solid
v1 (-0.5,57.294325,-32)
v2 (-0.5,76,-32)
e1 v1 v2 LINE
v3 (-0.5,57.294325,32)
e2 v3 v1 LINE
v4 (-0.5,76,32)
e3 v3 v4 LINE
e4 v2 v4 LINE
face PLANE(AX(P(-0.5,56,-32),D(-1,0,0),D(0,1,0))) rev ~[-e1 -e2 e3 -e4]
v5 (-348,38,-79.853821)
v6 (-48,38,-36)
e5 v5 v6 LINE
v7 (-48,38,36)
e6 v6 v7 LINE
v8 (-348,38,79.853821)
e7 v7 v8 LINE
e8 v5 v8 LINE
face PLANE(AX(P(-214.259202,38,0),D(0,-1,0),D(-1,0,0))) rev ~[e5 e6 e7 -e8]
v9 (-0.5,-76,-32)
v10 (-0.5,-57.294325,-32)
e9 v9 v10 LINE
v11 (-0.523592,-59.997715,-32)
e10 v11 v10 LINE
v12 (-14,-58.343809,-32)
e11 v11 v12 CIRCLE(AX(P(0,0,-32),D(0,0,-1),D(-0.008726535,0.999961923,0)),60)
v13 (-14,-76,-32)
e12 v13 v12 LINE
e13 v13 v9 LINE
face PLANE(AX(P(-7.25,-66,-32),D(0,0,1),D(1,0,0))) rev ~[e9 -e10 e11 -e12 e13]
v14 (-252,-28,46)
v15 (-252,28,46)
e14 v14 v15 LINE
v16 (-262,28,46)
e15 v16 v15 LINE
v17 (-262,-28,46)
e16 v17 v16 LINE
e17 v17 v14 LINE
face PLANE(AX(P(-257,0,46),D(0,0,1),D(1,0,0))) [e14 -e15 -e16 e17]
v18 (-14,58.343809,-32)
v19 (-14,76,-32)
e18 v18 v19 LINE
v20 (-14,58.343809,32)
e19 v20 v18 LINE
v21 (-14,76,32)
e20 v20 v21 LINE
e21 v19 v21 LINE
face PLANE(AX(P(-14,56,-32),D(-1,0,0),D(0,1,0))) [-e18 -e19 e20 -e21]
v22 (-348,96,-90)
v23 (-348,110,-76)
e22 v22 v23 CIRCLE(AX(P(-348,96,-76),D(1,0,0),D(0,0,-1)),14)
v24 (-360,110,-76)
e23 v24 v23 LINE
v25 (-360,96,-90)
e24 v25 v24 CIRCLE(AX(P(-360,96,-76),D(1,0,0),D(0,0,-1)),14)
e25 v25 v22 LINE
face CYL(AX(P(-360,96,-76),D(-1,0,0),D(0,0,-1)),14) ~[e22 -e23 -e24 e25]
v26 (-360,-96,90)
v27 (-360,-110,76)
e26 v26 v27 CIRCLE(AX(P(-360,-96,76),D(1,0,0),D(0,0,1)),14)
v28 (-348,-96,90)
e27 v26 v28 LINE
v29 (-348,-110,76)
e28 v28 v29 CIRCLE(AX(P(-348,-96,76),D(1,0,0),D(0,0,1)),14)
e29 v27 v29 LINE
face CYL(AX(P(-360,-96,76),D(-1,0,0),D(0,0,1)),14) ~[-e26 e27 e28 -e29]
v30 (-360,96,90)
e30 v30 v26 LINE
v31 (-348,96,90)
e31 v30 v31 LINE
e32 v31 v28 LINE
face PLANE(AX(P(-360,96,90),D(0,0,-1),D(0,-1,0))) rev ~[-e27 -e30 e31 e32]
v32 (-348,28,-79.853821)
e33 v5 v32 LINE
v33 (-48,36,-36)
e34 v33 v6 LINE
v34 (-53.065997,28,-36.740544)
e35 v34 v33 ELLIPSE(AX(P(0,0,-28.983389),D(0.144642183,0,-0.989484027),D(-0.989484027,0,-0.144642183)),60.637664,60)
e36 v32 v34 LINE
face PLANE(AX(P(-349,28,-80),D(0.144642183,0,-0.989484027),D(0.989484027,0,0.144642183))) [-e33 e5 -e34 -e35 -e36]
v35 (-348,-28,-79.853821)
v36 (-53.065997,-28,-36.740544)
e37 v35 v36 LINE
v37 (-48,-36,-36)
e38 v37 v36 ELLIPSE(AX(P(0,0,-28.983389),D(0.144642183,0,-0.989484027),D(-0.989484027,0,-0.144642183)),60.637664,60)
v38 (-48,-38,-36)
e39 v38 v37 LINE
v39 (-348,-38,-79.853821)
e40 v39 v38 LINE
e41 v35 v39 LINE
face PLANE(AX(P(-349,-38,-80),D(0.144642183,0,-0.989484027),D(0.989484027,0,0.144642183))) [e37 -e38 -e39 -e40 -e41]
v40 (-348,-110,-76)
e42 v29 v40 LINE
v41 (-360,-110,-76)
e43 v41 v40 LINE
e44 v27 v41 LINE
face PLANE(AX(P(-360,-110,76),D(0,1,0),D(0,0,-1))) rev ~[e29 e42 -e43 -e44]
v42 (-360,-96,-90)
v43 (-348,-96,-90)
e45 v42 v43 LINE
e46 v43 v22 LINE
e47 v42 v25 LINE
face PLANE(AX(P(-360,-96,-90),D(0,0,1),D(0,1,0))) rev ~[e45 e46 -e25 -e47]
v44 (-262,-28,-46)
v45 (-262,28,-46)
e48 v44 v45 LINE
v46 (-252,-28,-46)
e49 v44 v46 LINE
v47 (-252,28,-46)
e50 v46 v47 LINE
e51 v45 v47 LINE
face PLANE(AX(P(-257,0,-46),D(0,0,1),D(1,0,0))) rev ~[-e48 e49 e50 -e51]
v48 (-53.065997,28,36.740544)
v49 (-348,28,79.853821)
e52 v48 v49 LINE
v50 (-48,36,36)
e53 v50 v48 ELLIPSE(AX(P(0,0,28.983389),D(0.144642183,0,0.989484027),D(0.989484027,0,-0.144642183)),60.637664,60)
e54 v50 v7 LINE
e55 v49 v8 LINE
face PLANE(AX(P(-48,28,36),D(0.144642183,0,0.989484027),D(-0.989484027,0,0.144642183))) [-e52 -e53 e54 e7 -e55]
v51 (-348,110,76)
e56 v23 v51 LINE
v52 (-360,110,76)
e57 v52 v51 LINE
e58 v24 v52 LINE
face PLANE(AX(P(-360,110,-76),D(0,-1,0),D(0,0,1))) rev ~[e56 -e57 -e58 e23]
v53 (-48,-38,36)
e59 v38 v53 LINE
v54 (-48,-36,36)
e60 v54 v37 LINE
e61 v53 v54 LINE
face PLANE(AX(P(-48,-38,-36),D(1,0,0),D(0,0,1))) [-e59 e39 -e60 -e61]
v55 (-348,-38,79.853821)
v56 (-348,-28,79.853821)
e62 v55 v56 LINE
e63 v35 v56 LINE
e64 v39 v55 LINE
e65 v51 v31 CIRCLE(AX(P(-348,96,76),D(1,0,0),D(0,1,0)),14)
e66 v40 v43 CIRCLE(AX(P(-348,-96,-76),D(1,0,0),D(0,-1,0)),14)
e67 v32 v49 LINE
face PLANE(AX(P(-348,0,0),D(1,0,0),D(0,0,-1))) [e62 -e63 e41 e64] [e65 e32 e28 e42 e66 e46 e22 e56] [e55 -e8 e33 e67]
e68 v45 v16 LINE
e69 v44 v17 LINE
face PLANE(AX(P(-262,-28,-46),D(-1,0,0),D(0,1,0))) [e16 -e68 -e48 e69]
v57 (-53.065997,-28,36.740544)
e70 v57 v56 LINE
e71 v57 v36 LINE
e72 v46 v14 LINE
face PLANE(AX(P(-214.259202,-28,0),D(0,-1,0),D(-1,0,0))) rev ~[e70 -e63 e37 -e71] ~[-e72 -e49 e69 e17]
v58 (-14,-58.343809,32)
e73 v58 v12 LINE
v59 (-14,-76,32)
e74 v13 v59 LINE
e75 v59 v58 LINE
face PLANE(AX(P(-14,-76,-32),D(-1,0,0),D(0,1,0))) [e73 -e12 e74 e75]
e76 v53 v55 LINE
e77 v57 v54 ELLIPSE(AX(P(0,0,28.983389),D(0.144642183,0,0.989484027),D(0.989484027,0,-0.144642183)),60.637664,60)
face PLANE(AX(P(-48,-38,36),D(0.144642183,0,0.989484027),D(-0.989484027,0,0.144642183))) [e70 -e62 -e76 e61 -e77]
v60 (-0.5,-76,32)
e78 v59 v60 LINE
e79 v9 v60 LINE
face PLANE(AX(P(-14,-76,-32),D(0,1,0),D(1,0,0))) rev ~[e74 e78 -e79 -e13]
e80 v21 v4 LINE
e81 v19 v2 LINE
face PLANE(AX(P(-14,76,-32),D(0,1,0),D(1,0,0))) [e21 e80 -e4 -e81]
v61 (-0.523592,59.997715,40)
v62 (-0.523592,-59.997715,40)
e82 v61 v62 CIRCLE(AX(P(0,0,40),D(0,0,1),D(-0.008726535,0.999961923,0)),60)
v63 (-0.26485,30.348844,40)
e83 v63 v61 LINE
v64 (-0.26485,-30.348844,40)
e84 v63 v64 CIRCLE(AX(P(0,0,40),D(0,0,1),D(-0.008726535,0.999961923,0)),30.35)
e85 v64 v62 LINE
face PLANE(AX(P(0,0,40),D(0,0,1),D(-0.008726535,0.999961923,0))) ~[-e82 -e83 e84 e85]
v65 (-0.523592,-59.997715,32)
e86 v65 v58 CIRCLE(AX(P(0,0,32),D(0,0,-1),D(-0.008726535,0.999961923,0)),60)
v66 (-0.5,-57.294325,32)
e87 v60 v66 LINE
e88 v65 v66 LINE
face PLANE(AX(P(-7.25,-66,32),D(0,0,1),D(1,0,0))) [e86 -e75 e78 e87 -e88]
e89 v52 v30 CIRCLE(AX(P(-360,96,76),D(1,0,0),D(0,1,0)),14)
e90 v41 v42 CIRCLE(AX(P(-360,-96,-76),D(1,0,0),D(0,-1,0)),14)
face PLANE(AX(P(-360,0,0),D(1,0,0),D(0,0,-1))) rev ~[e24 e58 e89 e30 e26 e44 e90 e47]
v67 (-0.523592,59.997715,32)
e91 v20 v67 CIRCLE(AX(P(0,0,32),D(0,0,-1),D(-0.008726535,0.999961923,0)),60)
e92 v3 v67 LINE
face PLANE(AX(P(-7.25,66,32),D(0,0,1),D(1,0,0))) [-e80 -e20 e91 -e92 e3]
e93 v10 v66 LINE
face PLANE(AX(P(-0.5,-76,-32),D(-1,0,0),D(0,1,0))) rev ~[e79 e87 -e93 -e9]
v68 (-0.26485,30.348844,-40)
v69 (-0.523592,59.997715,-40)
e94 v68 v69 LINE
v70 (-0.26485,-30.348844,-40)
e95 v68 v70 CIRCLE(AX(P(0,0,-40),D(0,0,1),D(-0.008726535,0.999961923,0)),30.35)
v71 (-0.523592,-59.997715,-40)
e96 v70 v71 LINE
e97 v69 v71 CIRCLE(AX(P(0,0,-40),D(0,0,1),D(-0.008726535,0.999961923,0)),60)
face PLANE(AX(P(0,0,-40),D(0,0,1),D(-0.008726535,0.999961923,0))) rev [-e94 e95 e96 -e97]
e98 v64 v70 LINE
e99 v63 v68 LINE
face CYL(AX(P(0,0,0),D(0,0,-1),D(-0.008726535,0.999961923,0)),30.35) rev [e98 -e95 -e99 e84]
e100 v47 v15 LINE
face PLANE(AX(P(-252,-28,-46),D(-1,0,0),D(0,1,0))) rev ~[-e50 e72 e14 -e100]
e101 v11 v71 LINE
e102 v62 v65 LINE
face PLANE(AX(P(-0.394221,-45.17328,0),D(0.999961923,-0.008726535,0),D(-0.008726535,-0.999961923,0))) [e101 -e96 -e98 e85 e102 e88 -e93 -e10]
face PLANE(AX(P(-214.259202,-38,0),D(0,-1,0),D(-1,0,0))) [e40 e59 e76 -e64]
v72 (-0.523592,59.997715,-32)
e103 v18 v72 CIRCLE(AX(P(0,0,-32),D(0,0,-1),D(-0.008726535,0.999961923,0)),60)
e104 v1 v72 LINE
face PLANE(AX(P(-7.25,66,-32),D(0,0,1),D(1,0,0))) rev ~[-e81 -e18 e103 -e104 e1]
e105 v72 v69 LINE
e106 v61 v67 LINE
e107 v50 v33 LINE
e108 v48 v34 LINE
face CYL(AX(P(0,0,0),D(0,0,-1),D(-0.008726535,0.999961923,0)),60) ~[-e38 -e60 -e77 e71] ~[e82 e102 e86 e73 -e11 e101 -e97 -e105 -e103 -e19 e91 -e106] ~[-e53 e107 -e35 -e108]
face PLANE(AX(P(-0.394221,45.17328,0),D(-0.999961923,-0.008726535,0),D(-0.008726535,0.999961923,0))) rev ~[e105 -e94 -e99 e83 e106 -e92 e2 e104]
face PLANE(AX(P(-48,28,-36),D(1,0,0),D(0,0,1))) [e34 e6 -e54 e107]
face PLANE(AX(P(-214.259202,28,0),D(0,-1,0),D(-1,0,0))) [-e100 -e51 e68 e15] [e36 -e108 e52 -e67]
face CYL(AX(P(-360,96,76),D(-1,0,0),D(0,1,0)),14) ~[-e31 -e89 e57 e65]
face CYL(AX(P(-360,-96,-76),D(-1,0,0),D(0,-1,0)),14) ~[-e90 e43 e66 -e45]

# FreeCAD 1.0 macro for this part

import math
import FreeCAD as App
import Part
import Sketcher


def add_polygon(sketch, points):
    """Adds a closed chain of lines whose ends are joined by coincident constraints."""
    first, n = sketch.GeometryCount, len(points)
    for a, b in zip(points, points[1:] + points[:1]):
        sketch.addGeometry(Part.LineSegment(App.Vector(*a, 0), App.Vector(*b, 0)), False)
    for i in range(n):
        sketch.addConstraint(Sketcher.Constraint("Coincident", first + i, 2, first + (i + 1) % n, 1))

doc = App.newDocument("Part")
body = doc.addObject("PartDesign::Body", "Body")

# Sketch on YZ plane
sketch1 = body.newObject("Sketcher::SketchObject", "Sketch")
sketch1.AttachmentSupport = (doc.getObject("YZ_Plane"), [""])
sketch1.MapMode = "FlatFace"
sketch1.AttachmentOffset = App.Placement(App.Vector(0, 0, -360), App.Rotation())
sketch1.addGeometry([
    Part.LineSegment(App.Vector(96, 90, 0), App.Vector(-96, 90, 0)),  # 0
    Part.ArcOfCircle(Part.Circle(App.Vector(-96, 76, 0), App.Vector(0, 0, 1), 14), math.radians(90), math.radians(180)),  # 1
    Part.LineSegment(App.Vector(-110, 76, 0), App.Vector(-110, -76, 0)),  # 2
    Part.ArcOfCircle(Part.Circle(App.Vector(-96, -76, 0), App.Vector(0, 0, 1), 14), math.radians(180), math.radians(270)),  # 3
    Part.LineSegment(App.Vector(-96, -90, 0), App.Vector(96, -90, 0)),  # 4
    Part.ArcOfCircle(Part.Circle(App.Vector(96, -76, 0), App.Vector(0, 0, 1), 14), math.radians(-90), math.radians(0)),  # 5
    Part.LineSegment(App.Vector(110, -76, 0), App.Vector(110, 76, 0)),  # 6
    Part.ArcOfCircle(Part.Circle(App.Vector(96, 76, 0), App.Vector(0, 0, 1), 14), math.radians(0), math.radians(90)),  # 7
], False)
sketch1.addConstraint([
    Sketcher.Constraint("Tangent", 0, 2, 1, 1),
    Sketcher.Constraint("Tangent", 1, 2, 2, 1),
    Sketcher.Constraint("Tangent", 2, 2, 3, 1),
    Sketcher.Constraint("Tangent", 3, 2, 4, 1),
    Sketcher.Constraint("Tangent", 4, 2, 5, 1),
    Sketcher.Constraint("Tangent", 5, 2, 6, 1),
    Sketcher.Constraint("Tangent", 6, 2, 7, 1),
    Sketcher.Constraint("Tangent", 7, 2, 0, 1),
    Sketcher.Constraint("Horizontal", 0),
    Sketcher.Constraint("Vertical", 2),
    Sketcher.Constraint("Horizontal", 4),
    Sketcher.Constraint("Vertical", 6),
    Sketcher.Constraint("Equal", 1, 3),
    Sketcher.Constraint("Equal", 3, 5),
    Sketcher.Constraint("Equal", 5, 7),
    Sketcher.Constraint("Symmetric", 1, 3, 5, 3, -1, 1),
    Sketcher.Constraint("Radius", 1, 14.0),
    Sketcher.Constraint("DistanceX", 0, 2, 0, 1, 192.0),
    Sketcher.Constraint("DistanceY", 2, 2, 2, 1, 152.0),
])
pad1 = body.newObject("PartDesign::Pad", "Pad")
pad1.Profile = sketch1
pad1.Length = 12
body2 = doc.addObject("PartDesign::Body", "Body001")

# Sketch on XZ plane
sketch2 = body2.newObject("Sketcher::SketchObject", "Sketch001")
sketch2.AttachmentSupport = (doc.getObject("XZ_Plane001"), [""])
sketch2.MapMode = "FlatFace"
sketch2.AttachmentOffset = App.Placement(App.Vector(0, 0, -28), App.Rotation())
add_polygon(sketch2, [(-48, -36), (-349, -80), (-349, 80), (-48, 36)])  # lines 0-3
sketch2.addConstraint([
    Sketcher.Constraint("Vertical", 1),
    Sketcher.Constraint("Vertical", 3),
    Sketcher.Constraint("Equal", 0, 2),
    Sketcher.Constraint("DistanceY", 1, 1, 1, 2, 160.0),
    Sketcher.Constraint("DistanceY", 3, 2, 3, 1, 72.0),
    Sketcher.Constraint("DistanceX", 0, 2, -1, 1, 349.0),
    Sketcher.Constraint("DistanceY", 0, 2, -1, 1, 80.0),
    Sketcher.Constraint("DistanceX", 2, 2, -1, 1, 48.0),
])
pad2 = body2.newObject("PartDesign::Pad", "Pad001")
pad2.Profile = sketch2
pad2.Length = 10
pad2.Reversed = True
body3 = doc.addObject("PartDesign::Body", "Body002")

# Sketch on XZ plane
sketch3 = body3.newObject("Sketcher::SketchObject", "Sketch002")
sketch3.AttachmentSupport = (doc.getObject("XZ_Plane002"), [""])
sketch3.MapMode = "FlatFace"
sketch3.AttachmentOffset = App.Placement(App.Vector(0, 0, 38), App.Rotation())
add_polygon(sketch3, [(-48, -36), (-349, -80), (-349, 80), (-48, 36)])  # lines 0-3
sketch3.addConstraint([
    Sketcher.Constraint("Vertical", 1),
    Sketcher.Constraint("Vertical", 3),
    Sketcher.Constraint("Equal", 0, 2),
    Sketcher.Constraint("DistanceY", 1, 1, 1, 2, 160.0),
    Sketcher.Constraint("DistanceY", 3, 2, 3, 1, 72.0),
    Sketcher.Constraint("DistanceX", 0, 2, -1, 1, 349.0),
    Sketcher.Constraint("DistanceY", 0, 2, -1, 1, 80.0),
    Sketcher.Constraint("DistanceX", 2, 2, -1, 1, 48.0),
])
pad3 = body3.newObject("PartDesign::Pad", "Pad002")
pad3.Profile = sketch3
pad3.Length = 10
pad3.Reversed = True
body4 = doc.addObject("PartDesign::Body", "Body003")

# Sketch on XY plane
sketch4 = body4.newObject("Sketcher::SketchObject", "Sketch003")
sketch4.AttachmentSupport = (doc.getObject("XY_Plane003"), [""])
sketch4.MapMode = "FlatFace"
sketch4.AttachmentOffset = App.Placement(App.Vector(0, 0, -46), App.Rotation())
add_polygon(sketch4, [(-262, 28), (-262, -28), (-252, -28), (-252, 28)])  # lines 0-3
sketch4.addConstraint([
    Sketcher.Constraint("Vertical", 0),
    Sketcher.Constraint("Horizontal", 1),
    Sketcher.Constraint("Vertical", 2),
    Sketcher.Constraint("Horizontal", 3),
    Sketcher.Constraint("DistanceX", 1, 1, 1, 2, 10.0),
    Sketcher.Constraint("DistanceY", 0, 2, 0, 1, 56.0),
    Sketcher.Constraint("DistanceX", 0, 2, -1, 1, 262.0),
    Sketcher.Constraint("DistanceY", 0, 2, -1, 1, 28.0),
])
pad4 = body4.newObject("PartDesign::Pad", "Pad003")
pad4.Profile = sketch4
pad4.Length = 92
body5 = doc.addObject("PartDesign::Body", "Body004")

# Sketch on XZ plane
sketch5 = body5.newObject("Sketcher::SketchObject", "Sketch004")
sketch5.AttachmentSupport = (doc.getObject("XZ_Plane004"), [""])
sketch5.MapMode = "FlatFace"
add_polygon(sketch5, [(30, -40), (30, 40), (60, 40), (60, -40)])  # lines 0-3
sketch5.addConstraint([
    Sketcher.Constraint("Vertical", 0),
    Sketcher.Constraint("Horizontal", 1),
    Sketcher.Constraint("Vertical", 2),
    Sketcher.Constraint("Horizontal", 3),
    Sketcher.Constraint("DistanceY", 0, 1, 0, 2, 80.0),
    Sketcher.Constraint("DistanceY", -1, 1, 0, 2, 40.0),
    Sketcher.Constraint("DistanceX", -1, 1, 1, 2, 60.0),
    Sketcher.Constraint("DistanceX", 1, 1, 1, 2, 29.65),
])
revolution = body5.newObject("PartDesign::Revolution", "Revolution")
revolution.Profile = sketch5
revolution.ReferenceAxis = (sketch5, ["V_Axis"])
revolution.Angle = 179
body6 = doc.addObject("PartDesign::Body", "Body005")
doc.recompute()

body5.Placement = App.Placement(App.Vector(0, 0, 0), App.Rotation(App.Vector(0, 0, 1), 90.5))
boolean = body6.newObject("PartDesign::Boolean", "Boolean")
boolean.Type = "Fuse"
boolean.addObjects([body5])
body7 = doc.addObject("PartDesign::Body", "Body006")

# Sketch on XY plane
sketch6 = body7.newObject("Sketcher::SketchObject", "Sketch005")
sketch6.AttachmentSupport = (doc.getObject("XY_Plane006"), [""])
sketch6.MapMode = "FlatFace"
sketch6.AttachmentOffset = App.Placement(App.Vector(0, 0, -32), App.Rotation())
add_polygon(sketch6, [(-14, 76), (-14, 56), (0, 56), (0, 76)])  # lines 0-3
sketch6.addConstraint([
    Sketcher.Constraint("Vertical", 0),
    Sketcher.Constraint("Horizontal", 1),
    Sketcher.Constraint("Vertical", 2),
    Sketcher.Constraint("Horizontal", 3),
    Sketcher.Constraint("DistanceY", 0, 2, 0, 1, 20.0),
    Sketcher.Constraint("DistanceX", 1, 1, 1, 2, 13.5),
    Sketcher.Constraint("DistanceX", 0, 2, -1, 1, 14.0),
    Sketcher.Constraint("DistanceY", -1, 1, 0, 2, 56.0),
])
pad5 = body7.newObject("PartDesign::Pad", "Pad004")
pad5.Profile = sketch6
pad5.Length = 64
body8 = doc.addObject("PartDesign::Body", "Body007")
body8.AllowCompound = True

# Sketch on XY plane
sketch7 = body8.newObject("Sketcher::SketchObject", "Sketch006")
sketch7.AttachmentSupport = (doc.getObject("XY_Plane007"), [""])
sketch7.MapMode = "FlatFace"
sketch7.AttachmentOffset = App.Placement(App.Vector(0, 0, -32), App.Rotation())
add_polygon(sketch7, [(-14, -56), (-14, -76), (0, -76), (0, -56)])  # lines 0-3
sketch7.addConstraint([
    Sketcher.Constraint("Vertical", 0),
    Sketcher.Constraint("Horizontal", 1),
    Sketcher.Constraint("Vertical", 2),
    Sketcher.Constraint("Horizontal", 3),
    Sketcher.Constraint("DistanceY", 0, 2, 0, 1, 20.0),
    Sketcher.Constraint("DistanceX", 1, 1, 1, 2, 13.5),
    Sketcher.Constraint("DistanceX", 0, 2, -1, 1, 14.0),
    Sketcher.Constraint("DistanceY", 0, 2, -1, 1, 76.0),
])
pad6 = body8.newObject("PartDesign::Pad", "Pad005")
pad6.Profile = sketch7
pad6.Length = 64
doc.recompute()

boolean2 = body8.newObject("PartDesign::Boolean", "Boolean001")
boolean2.Type = "Fuse"
boolean2.addObjects([body2])
doc.recompute()

boolean3 = body8.newObject("PartDesign::Boolean", "Boolean002")
boolean3.Type = "Fuse"
boolean3.addObjects([body6])
doc.recompute()

boolean4 = body8.newObject("PartDesign::Boolean", "Boolean003")
boolean4.Type = "Fuse"
boolean4.addObjects([body3])
doc.recompute()

boolean5 = body8.newObject("PartDesign::Boolean", "Boolean004")
boolean5.Type = "Fuse"
boolean5.addObjects([body4])
doc.recompute()

boolean6 = body8.newObject("PartDesign::Boolean", "Boolean005")
boolean6.Type = "Fuse"
boolean6.addObjects([body7])
doc.recompute()

boolean7 = body8.newObject("PartDesign::Boolean", "Boolean006")
boolean7.Type = "Fuse"
boolean7.addObjects([body])

doc.recompute()
